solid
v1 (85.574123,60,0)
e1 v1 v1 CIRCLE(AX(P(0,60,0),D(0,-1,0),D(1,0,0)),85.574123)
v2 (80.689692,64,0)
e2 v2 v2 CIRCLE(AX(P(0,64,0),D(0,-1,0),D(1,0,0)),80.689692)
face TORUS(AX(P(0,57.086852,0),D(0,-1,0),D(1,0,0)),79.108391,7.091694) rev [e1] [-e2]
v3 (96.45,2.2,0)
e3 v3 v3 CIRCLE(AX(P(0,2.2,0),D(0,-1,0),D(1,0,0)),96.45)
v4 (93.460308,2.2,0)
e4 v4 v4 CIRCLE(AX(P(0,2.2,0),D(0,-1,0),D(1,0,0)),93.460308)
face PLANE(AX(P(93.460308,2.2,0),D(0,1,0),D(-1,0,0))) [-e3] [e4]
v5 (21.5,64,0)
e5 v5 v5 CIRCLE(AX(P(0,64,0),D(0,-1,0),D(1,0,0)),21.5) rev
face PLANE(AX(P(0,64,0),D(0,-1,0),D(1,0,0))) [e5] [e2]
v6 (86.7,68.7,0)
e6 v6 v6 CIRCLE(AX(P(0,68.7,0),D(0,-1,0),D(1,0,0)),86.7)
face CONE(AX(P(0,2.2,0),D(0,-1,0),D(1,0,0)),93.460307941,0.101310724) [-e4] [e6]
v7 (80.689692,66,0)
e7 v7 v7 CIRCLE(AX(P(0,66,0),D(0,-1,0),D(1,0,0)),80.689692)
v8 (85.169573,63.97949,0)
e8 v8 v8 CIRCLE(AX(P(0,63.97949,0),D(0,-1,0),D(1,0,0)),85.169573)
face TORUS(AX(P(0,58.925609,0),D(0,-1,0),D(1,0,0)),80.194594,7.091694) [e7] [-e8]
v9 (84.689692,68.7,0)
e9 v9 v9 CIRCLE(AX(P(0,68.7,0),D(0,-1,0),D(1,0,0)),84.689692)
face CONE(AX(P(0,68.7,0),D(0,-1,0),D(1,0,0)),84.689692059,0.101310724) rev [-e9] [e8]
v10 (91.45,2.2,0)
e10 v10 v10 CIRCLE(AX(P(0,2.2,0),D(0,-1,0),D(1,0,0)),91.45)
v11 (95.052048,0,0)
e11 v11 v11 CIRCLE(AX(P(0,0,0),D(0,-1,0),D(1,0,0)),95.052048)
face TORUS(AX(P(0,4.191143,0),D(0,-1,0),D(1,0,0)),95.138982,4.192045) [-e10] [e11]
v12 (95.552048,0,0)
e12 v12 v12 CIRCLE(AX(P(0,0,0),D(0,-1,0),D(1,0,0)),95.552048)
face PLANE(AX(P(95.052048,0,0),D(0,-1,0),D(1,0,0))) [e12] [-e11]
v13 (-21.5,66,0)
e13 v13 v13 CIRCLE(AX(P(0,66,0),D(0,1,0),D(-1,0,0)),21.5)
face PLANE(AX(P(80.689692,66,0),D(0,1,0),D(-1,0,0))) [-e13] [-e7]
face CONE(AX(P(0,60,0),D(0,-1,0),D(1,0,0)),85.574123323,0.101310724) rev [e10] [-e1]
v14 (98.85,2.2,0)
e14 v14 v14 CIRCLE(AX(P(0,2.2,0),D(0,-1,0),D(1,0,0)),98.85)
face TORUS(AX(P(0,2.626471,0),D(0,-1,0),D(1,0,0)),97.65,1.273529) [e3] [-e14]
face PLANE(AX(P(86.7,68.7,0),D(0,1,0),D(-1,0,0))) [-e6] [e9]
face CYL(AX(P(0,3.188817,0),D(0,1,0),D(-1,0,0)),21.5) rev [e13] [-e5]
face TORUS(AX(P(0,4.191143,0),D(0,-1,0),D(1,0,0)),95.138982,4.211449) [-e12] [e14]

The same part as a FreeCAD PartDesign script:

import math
import FreeCAD as App
import Part
import Sketcher
from FreeCAD import Vector
Q = App.Units.Quantity

doc = App.newDocument("Part")
body = doc.addObject("PartDesign::Body", "Body")

sketch1 = body.newObject("Sketcher::SketchObject", "Sketch")
sketch1.AttachmentSupport = (doc.getObject("XY_Plane"), [""])
sketch1.MapMode = "FlatFace"
sketch1.addGeometry([
    Part.LineSegment(Vector(93.5, 2.2, 0), Vector(86.7, 68.7, 0)),
    Part.LineSegment(Vector(86.7, 68.7, 0), Vector(84.7, 68.7, 0)),
    Part.LineSegment(Vector(84.7, 68.7, 0), Vector(85.2, 64, 0)),
    Part.ArcOfCircle(Part.Circle(Vector(80.2, 58.9, 0), Vector(0, 0, 1), 7.1), math.radians(45), math.radians(86)),
    Part.LineSegment(Vector(80.7, 66, 0), Vector(0, 66, 0)),
    Part.LineSegment(Vector(0, 66, 0), Vector(0, 64, 0)),
    Part.LineSegment(Vector(0, 64, 0), Vector(80.7, 64, 0)),
    Part.ArcOfCircle(Part.Circle(Vector(79.1, 57.1, 0), Vector(0, 0, 1), 7.1), math.radians(24), math.radians(77)),
    Part.LineSegment(Vector(85.6, 60, 0), Vector(91.5, 2.2, 0)),
    Part.ArcOfCircle(Part.Circle(Vector(95.1, 4.2, 0), Vector(0, 0, 1), 4.2), math.radians(-152), math.radians(-91)),
    Part.LineSegment(Vector(95.1, 0, 0), Vector(95.6, 0, 0)),
    Part.ArcOfCircle(Part.Circle(Vector(95.1, 4.2, 0), Vector(0, 0, 1), 4.2), math.radians(-84), math.radians(-28)),
    Part.ArcOfCircle(Part.Circle(Vector(97.7, 2.6, 0), Vector(0, 0, 1), 1.3), math.radians(-20), math.radians(200)),
    Part.LineSegment(Vector(96.5, 2.2, 0), Vector(93.5, 2.2, 0)),
], False)
sketch1.addConstraint([
    Sketcher.Constraint("Coincident", 0, 2, 1, 1),
    Sketcher.Constraint("Coincident", 1, 2, 2, 1),
    Sketcher.Constraint("Coincident", 2, 2, 3, 1),
    Sketcher.Constraint("Coincident", 3, 2, 4, 1),
    Sketcher.Constraint("Coincident", 4, 2, 5, 1),
    Sketcher.Constraint("Coincident", 5, 2, 6, 1),
    Sketcher.Constraint("Coincident", 6, 2, 7, 2),
    Sketcher.Constraint("Coincident", 7, 1, 8, 1),
    Sketcher.Constraint("Coincident", 8, 2, 9, 1),
    Sketcher.Constraint("Coincident", 9, 2, 10, 1),
    Sketcher.Constraint("Coincident", 10, 2, 11, 1),
    Sketcher.Constraint("Coincident", 11, 2, 12, 1),
    Sketcher.Constraint("Coincident", 12, 2, 13, 1),
    Sketcher.Constraint("Coincident", 13, 2, 0, 1),
    Sketcher.Constraint("Horizontal", 1),
    Sketcher.Constraint("Horizontal", 4),
    Sketcher.Constraint("Vertical", 5),
    Sketcher.Constraint("Horizontal", 6),
    Sketcher.Constraint("Horizontal", 10),
    Sketcher.Constraint("Horizontal", 13),
    Sketcher.Constraint("Coincident", 11, 3, 9, 3),
    Sketcher.Constraint("Equal", 3, 7),
    Sketcher.Constraint("PointOnObject", 4, 2, -2),
    Sketcher.Constraint("PointOnObject", 9, 2, -1),
    Sketcher.Constraint("Parallel", 0, 2),
    Sketcher.Constraint("Parallel", 2, 8),
    Sketcher.Constraint("Horizontal", 8, 2, 11, 2),
    Sketcher.Constraint("Horizontal", 11, 2, 12, 2),
    Sketcher.Constraint("Vertical", 3, 2, 6, 2),
    Sketcher.Constraint("DistanceY", 5, 2, 5, 1, Q("2 mm")),
    Sketcher.Constraint("DistanceX", 10, 1, 10, 2, Q("0.5 mm")),
    Sketcher.Constraint("DistanceY", -1, 1, 3, 2, Q("66 mm")),
    Sketcher.Constraint("DistanceY", -1, 1, 7, 1, Q("60 mm")),
    Sketcher.Constraint("DistanceX", 3, 2, 1, 2, Q("4 mm")),
    Sketcher.Constraint("DistanceX", -1, 1, 0, 2, Q("86.7 mm")),
    Sketcher.Constraint("DistanceY", -1, 1, 0, 2, Q("68.7 mm")),
    Sketcher.Constraint("DistanceY", -1, 1, 8, 2, Q("2.2 mm")),
    Sketcher.Constraint("DistanceX", 8, 2, 12, 3, Q("6.2 mm")),
    Sketcher.Constraint("DistanceX", 12, 3, 11, 2, Q("1.2 mm")),
    Sketcher.Constraint("DistanceX", -1, 1, 12, 3, Q("97.65 mm")),
    Sketcher.Constraint("Radius", 11, Q("4.211449 mm")),
    Sketcher.Constraint("Radius", 12, Q("1.273529 mm")),
    Sketcher.Constraint("Radius", 3, Q("7.091694 mm")),
    Sketcher.Constraint("Distance", 8, Q("58.0979 mm")),
    Sketcher.Constraint("DistanceX", 3, 3, 1, 2, Q("4.495098 mm")),
    Sketcher.Constraint("DistanceX", 7, 3, 1, 2, Q("5.581301 mm")),
])
revolution = body.newObject("PartDesign::Revolution", "Revolution")
revolution.Profile = sketch1
revolution.ReferenceAxis = (sketch1, ["V_Axis"])
revolution.Angle = 360

sketch2 = body.newObject("Sketcher::SketchObject", "Sketch001")
sketch2.AttachmentSupport = (doc.getObject("XZ_Plane"), [""])
sketch2.MapMode = "FlatFace"
sketch2.AttachmentOffset = App.Placement(Vector(0, 0, -66), App.Rotation())
sketch2.addGeometry(Part.Circle(Vector(0, 0, 0), Vector(0, 0, 1), 22), False)
sketch2.addConstraint([
    Sketcher.Constraint("Coincident", 0, 3, -1, 1),
    Sketcher.Constraint("Diameter", 0, Q("43 mm")),
])
pocket1 = body.newObject("PartDesign::Pocket", "Pocket")
pocket1.Profile = sketch2
pocket1.Length = 2
pocket1.Reversed = True

doc.recompute()
